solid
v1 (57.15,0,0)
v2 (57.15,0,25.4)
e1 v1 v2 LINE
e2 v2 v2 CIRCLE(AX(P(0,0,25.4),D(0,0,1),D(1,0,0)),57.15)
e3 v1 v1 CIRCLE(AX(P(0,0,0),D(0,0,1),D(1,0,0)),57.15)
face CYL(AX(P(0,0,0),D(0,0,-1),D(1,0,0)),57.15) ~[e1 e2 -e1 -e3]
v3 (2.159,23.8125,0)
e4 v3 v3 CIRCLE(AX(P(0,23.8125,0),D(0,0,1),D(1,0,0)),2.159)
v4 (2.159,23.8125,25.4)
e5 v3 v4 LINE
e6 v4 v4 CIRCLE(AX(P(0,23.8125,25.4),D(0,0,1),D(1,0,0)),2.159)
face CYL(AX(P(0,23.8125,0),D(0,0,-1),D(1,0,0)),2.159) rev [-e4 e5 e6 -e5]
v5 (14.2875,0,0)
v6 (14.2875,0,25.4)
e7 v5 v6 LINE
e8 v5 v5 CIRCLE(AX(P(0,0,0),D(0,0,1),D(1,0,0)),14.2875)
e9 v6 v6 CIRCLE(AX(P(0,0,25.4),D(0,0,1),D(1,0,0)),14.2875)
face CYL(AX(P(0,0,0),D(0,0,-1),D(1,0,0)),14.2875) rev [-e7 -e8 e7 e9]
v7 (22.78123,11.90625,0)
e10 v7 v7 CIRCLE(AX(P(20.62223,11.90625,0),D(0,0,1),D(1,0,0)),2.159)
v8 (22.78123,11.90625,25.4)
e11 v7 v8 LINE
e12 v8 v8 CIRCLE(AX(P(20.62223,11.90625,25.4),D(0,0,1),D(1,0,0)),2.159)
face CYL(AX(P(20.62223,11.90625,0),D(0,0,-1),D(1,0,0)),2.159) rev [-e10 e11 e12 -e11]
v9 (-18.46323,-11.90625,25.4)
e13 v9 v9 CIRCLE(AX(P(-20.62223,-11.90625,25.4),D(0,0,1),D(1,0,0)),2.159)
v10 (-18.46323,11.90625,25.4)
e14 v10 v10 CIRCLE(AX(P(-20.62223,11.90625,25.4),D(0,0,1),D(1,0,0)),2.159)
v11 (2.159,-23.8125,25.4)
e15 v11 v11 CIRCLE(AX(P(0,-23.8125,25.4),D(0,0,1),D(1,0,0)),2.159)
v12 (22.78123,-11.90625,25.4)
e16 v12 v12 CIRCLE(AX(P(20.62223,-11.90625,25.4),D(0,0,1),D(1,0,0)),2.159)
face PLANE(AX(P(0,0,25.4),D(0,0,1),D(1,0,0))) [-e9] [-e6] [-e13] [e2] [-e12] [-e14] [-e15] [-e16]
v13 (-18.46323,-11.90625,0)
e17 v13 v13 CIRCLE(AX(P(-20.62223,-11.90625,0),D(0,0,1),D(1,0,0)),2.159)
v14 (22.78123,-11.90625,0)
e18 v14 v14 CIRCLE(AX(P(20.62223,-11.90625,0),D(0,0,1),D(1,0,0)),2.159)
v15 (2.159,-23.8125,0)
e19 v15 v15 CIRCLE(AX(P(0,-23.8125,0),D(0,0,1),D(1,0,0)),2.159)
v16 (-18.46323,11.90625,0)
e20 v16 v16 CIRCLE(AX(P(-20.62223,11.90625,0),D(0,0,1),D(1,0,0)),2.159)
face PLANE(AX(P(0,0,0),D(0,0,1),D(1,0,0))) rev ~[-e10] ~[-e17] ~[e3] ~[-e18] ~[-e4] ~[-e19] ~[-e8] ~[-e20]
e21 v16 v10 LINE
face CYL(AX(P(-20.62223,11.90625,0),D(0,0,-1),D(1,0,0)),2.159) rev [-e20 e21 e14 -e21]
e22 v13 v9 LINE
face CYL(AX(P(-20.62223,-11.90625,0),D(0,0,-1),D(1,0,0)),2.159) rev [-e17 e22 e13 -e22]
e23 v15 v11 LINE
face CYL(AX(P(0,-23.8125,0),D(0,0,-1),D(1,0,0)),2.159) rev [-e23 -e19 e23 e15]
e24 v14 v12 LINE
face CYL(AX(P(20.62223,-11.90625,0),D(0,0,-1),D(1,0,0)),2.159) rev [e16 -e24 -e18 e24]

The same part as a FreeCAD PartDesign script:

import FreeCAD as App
import Part
import Sketcher

V = App.Vector
Q = App.Units.Quantity

doc = App.newDocument("Part")
params = doc.addObject("Spreadsheet::Sheet", "Params")
for row, (alias, value) in enumerate([
    ("sketch1_diameter", "4.5 in"),
    ("sketch1_diameter2", "0.17 in"),
    ("sketch1_diameter3", "1.125 in"),
    ("pad1_length", "1 in"),
], start=1):
    params.set(f"A{row}", alias)
    params.set(f"B{row}", "=" + value)
    params.setAlias(f"B{row}", alias)

body = doc.addObject("PartDesign::Body", "Body")

sketch1 = body.newObject("Sketcher::SketchObject", "Sketch")
sketch1.AttachmentSupport = (doc.getObject("XY_Plane"), [""])
sketch1.MapMode = "FlatFace"
sketch1.addGeometry([
    Part.Circle(V(0, 0, 0), V(0, 0, 1), 57.1),
    Part.Circle(V(-20.6, -11.9, 0), V(0, 0, 1), 2.2),
    Part.Circle(V(0, -23.8, 0), V(0, 0, 1), 2.2),
    Part.Circle(V(20.6, -11.9, 0), V(0, 0, 1), 2.2),
    Part.Circle(V(-20.6, 11.9, 0), V(0, 0, 1), 2.2),
    Part.Circle(V(0, 0, 0), V(0, 0, 1), 14.3),
    Part.Circle(V(20.6, 11.9, 0), V(0, 0, 1), 2.2),
    Part.Circle(V(0, 23.8, 0), V(0, 0, 1), 2.2),
], False)
sketch1.addConstraint([
    Sketcher.Constraint("Coincident", 0, 3, -1, 1),
    Sketcher.Constraint("Coincident", 5, 3, -1, 1),
    Sketcher.Constraint("Equal", 1, 2),
    Sketcher.Constraint("Equal", 2, 3),
    Sketcher.Constraint("Equal", 3, 4),
    Sketcher.Constraint("Equal", 4, 6),
    Sketcher.Constraint("Equal", 6, 7),
    Sketcher.Constraint("Symmetric", 3, 3, 4, 3, -1, 1),
    Sketcher.Constraint("Symmetric", 1, 3, 6, 3, -1, 1),
    Sketcher.Constraint("Symmetric", 2, 3, 7, 3, -1, 1),
    Sketcher.Constraint("Symmetric", 1, 3, 3, 3, -2),
    Sketcher.Constraint("PointOnObject", 2, 3, -2),
    Sketcher.Constraint("Diameter", 0, Q("4.5 in")),
    Sketcher.Constraint("Diameter", 1, Q("0.17 in")),
    Sketcher.Constraint("Diameter", 5, Q("1.125 in")),
    Sketcher.Constraint("DistanceY", 1, 3, -1, 1, Q("0.46875 in")),
    Sketcher.Constraint("DistanceY", 2, 3, -1, 1, Q("0.9375 in")),
    Sketcher.Constraint("DistanceX", 1, 3, -1, 1, Q("20.62223 mm")),
])
sketch1.setExpression("Constraints[12]", "Params.sketch1_diameter")
sketch1.setExpression("Constraints[13]", "Params.sketch1_diameter2")
sketch1.setExpression("Constraints[14]", "Params.sketch1_diameter3")
pad1 = body.newObject("PartDesign::Pad", "Pad")
pad1.Profile = sketch1
pad1.setExpression("Length", "Params.pad1_length")

doc.recompute()
